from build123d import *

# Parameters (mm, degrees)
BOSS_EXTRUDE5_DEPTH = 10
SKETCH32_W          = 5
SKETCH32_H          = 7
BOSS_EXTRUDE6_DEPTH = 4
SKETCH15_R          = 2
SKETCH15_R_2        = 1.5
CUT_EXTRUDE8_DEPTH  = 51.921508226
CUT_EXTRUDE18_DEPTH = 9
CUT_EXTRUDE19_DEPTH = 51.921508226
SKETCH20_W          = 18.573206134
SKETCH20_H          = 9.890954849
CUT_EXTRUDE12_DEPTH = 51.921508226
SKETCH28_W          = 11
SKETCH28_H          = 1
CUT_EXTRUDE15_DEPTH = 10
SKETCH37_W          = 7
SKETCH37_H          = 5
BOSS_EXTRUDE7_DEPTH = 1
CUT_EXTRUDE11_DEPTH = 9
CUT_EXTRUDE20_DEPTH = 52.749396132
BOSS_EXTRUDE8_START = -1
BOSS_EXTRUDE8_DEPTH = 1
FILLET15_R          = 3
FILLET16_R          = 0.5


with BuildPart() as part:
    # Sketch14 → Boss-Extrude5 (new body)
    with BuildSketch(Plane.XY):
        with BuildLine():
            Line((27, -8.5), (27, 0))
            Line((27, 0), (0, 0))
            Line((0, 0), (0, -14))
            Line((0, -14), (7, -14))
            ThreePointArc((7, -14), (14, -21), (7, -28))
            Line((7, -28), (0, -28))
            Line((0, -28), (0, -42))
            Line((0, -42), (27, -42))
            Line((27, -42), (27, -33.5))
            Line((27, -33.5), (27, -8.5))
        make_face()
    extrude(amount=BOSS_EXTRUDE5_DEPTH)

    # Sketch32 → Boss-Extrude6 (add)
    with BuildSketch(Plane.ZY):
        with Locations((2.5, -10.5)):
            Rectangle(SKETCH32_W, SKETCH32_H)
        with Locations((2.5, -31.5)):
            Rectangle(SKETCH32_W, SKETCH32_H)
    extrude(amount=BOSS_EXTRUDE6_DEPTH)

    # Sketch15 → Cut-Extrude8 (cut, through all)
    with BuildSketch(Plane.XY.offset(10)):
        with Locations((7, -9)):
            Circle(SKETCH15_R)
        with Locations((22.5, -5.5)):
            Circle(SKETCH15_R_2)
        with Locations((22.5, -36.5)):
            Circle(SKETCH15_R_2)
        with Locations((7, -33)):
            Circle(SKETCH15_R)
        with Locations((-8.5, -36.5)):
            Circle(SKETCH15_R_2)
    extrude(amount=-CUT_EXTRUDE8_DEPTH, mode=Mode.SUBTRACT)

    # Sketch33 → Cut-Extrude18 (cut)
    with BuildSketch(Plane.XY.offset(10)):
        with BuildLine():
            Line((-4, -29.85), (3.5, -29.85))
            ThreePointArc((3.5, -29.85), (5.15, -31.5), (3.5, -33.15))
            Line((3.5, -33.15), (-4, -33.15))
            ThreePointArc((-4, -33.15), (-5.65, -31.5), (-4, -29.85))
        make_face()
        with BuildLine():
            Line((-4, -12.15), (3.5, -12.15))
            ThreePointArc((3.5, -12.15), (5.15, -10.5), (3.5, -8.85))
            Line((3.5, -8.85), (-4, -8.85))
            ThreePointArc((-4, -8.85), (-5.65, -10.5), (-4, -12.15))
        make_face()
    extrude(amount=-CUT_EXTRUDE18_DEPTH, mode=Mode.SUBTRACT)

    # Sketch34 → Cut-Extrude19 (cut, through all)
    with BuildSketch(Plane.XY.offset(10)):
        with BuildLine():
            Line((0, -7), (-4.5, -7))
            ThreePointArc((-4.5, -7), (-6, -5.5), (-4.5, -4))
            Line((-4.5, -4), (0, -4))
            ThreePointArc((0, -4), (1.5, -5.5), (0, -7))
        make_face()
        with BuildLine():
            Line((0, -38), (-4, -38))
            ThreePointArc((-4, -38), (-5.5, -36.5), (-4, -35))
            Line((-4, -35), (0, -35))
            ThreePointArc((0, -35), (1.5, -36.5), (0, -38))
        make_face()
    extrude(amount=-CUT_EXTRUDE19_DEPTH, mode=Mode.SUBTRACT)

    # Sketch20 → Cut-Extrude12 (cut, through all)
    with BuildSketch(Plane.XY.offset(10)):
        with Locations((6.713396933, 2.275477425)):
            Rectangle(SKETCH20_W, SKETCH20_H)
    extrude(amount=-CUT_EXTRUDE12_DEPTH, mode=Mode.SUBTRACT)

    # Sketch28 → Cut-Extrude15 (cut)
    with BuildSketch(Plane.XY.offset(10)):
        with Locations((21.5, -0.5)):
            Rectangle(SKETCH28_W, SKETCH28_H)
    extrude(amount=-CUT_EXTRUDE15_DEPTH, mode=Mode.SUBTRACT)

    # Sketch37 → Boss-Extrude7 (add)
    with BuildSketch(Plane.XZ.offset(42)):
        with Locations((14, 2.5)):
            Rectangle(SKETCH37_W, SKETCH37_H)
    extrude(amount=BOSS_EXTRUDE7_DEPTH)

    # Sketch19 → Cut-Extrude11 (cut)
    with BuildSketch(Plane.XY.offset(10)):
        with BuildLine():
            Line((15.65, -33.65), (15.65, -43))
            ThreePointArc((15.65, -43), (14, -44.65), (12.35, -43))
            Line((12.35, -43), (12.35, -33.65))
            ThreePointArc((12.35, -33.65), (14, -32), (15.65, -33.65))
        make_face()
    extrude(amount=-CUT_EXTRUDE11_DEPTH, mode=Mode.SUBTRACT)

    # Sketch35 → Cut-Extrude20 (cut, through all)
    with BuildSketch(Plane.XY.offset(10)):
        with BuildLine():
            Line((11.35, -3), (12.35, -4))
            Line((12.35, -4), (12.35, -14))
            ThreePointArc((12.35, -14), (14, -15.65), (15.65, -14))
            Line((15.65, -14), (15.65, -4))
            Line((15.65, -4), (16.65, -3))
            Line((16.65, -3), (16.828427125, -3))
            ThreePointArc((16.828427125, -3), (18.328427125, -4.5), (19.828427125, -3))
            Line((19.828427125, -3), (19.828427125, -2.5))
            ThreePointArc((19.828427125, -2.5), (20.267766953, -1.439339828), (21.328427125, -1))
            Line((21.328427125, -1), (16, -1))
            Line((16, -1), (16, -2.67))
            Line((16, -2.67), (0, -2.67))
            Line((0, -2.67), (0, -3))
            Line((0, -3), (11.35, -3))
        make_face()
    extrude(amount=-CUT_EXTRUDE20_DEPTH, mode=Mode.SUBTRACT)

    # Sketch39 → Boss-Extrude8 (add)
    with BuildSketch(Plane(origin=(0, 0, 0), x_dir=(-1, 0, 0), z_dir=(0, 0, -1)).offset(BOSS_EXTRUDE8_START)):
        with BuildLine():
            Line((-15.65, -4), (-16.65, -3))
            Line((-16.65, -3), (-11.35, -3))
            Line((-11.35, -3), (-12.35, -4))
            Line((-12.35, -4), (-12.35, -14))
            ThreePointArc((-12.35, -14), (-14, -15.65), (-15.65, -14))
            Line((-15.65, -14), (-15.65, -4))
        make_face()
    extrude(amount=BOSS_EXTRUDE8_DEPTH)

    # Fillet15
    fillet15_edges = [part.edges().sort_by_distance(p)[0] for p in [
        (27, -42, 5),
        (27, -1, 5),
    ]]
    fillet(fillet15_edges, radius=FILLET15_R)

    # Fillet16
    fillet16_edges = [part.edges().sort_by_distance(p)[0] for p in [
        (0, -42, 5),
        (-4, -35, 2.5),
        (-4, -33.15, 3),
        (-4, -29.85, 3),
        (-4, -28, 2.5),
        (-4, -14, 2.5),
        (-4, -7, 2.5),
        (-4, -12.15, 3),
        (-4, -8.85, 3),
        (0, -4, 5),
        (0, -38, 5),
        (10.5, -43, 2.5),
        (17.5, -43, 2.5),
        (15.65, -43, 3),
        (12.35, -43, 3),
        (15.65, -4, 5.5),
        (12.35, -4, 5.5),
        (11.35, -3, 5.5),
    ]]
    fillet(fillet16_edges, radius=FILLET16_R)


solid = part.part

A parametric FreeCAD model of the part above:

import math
import FreeCAD as App
import Part
import Sketcher

V = App.Vector
Q = App.Units.Quantity


def edges_at(feature, points):
    """Names of the edges that pass closest to the given points."""
    edges = feature.Shape.Edges
    near = lambda p: min(range(len(edges)), key=lambda i: edges[i].distToShape(Part.Vertex(*p))[0])
    return sorted({f"Edge{near(p) + 1}" for p in points})

doc = App.newDocument("Part")
body = doc.addObject("PartDesign::Body", "Body")

# Sketch on XY plane
sketch1 = body.newObject("Sketcher::SketchObject", "Sketch")
sketch1.AttachmentSupport = (doc.getObject("XY_Plane"), [""])
sketch1.MapMode = "FlatFace"
sketch1.addGeometry(Part.LineSegment(V(27, 0, 0), V(0, 0, 0)), False)
sketch1.addGeometry(Part.LineSegment(V(0, 0, 0), V(0, -14, 0)), False)
sketch1.addGeometry(Part.LineSegment(V(0, -14, 0), V(7, -14, 0)), False)
sketch1.addGeometry(Part.ArcOfCircle(Part.Circle(V(7, -21, 0), V(0, 0, 1), 7), math.radians(-90), math.radians(90)), False)
sketch1.addGeometry(Part.LineSegment(V(7, -28, 0), V(0, -28, 0)), False)
sketch1.addGeometry(Part.LineSegment(V(0, -28, 0), V(0, -42, 0)), False)
sketch1.addGeometry(Part.LineSegment(V(0, -42, 0), V(27, -42, 0)), False)
sketch1.addGeometry(Part.LineSegment(V(27, -42, 0), V(27, 0, 0)), False)
sketch1.addConstraint(Sketcher.Constraint("Coincident", 0, 2, 1, 1))
sketch1.addConstraint(Sketcher.Constraint("Coincident", 1, 2, 2, 1))
sketch1.addConstraint(Sketcher.Constraint("Tangent", 2, 2, 3, 2))
sketch1.addConstraint(Sketcher.Constraint("Tangent", 3, 1, 4, 1))
sketch1.addConstraint(Sketcher.Constraint("Coincident", 4, 2, 5, 1))
sketch1.addConstraint(Sketcher.Constraint("Coincident", 5, 2, 6, 1))
sketch1.addConstraint(Sketcher.Constraint("Coincident", 6, 2, 7, 1))
sketch1.addConstraint(Sketcher.Constraint("Coincident", 7, 2, 0, 1))
sketch1.addConstraint(Sketcher.Constraint("Horizontal", 0))
sketch1.addConstraint(Sketcher.Constraint("Vertical", 1))
sketch1.addConstraint(Sketcher.Constraint("Horizontal", 2))
sketch1.addConstraint(Sketcher.Constraint("Horizontal", 4))
sketch1.addConstraint(Sketcher.Constraint("Vertical", 5))
sketch1.addConstraint(Sketcher.Constraint("Horizontal", 6))
sketch1.addConstraint(Sketcher.Constraint("Vertical", 7))
sketch1.addConstraint(Sketcher.Constraint("Coincident", 0, 2, -1, 1))
sketch1.addConstraint(Sketcher.Constraint("PointOnObject", 4, 2, -2))
sketch1.addConstraint(Sketcher.Constraint("Equal", 1, 5))
sketch1.addConstraint(Sketcher.Constraint("Radius", 3, Q("7 mm")))
sketch1.addConstraint(Sketcher.Constraint("DistanceX", 0, 2, 0, 1, Q("27 mm")))
sketch1.addConstraint(Sketcher.Constraint("DistanceX", 2, 1, 2, 2, Q("7 mm")))
sketch1.addConstraint(Sketcher.Constraint("DistanceY", 1, 2, 1, 1, Q("14 mm")))
pad1 = body.newObject("PartDesign::Pad", "Pad")
pad1.Profile = sketch1
pad1.Length = 10

# Sketch on YZ plane
sketch2 = body.newObject("Sketcher::SketchObject", "Sketch001")
sketch2.AttachmentSupport = (doc.getObject("YZ_Plane"), [""])
sketch2.MapMode = "FlatFace"
sketch2.addGeometry(Part.LineSegment(V(-7, 0, 0), V(-14, 0, 0)), False)
sketch2.addGeometry(Part.LineSegment(V(-14, 0, 0), V(-14, 5, 0)), False)
sketch2.addGeometry(Part.LineSegment(V(-14, 5, 0), V(-7, 5, 0)), False)
sketch2.addGeometry(Part.LineSegment(V(-7, 5, 0), V(-7, 0, 0)), False)
sketch2.addGeometry(Part.LineSegment(V(-28, 0, 0), V(-35, 0, 0)), False)
sketch2.addGeometry(Part.LineSegment(V(-35, 0, 0), V(-35, 5, 0)), False)
sketch2.addGeometry(Part.LineSegment(V(-35, 5, 0), V(-28, 5, 0)), False)
sketch2.addGeometry(Part.LineSegment(V(-28, 5, 0), V(-28, 0, 0)), False)
sketch2.addConstraint(Sketcher.Constraint("Coincident", 0, 2, 1, 1))
sketch2.addConstraint(Sketcher.Constraint("Coincident", 1, 2, 2, 1))
sketch2.addConstraint(Sketcher.Constraint("Coincident", 2, 2, 3, 1))
sketch2.addConstraint(Sketcher.Constraint("Coincident", 3, 2, 0, 1))
sketch2.addConstraint(Sketcher.Constraint("Coincident", 4, 2, 5, 1))
sketch2.addConstraint(Sketcher.Constraint("Coincident", 5, 2, 6, 1))
sketch2.addConstraint(Sketcher.Constraint("Coincident", 6, 2, 7, 1))
sketch2.addConstraint(Sketcher.Constraint("Coincident", 7, 2, 4, 1))
sketch2.addConstraint(Sketcher.Constraint("Horizontal", 0))
sketch2.addConstraint(Sketcher.Constraint("Vertical", 1))
sketch2.addConstraint(Sketcher.Constraint("Horizontal", 2))
sketch2.addConstraint(Sketcher.Constraint("Vertical", 3))
sketch2.addConstraint(Sketcher.Constraint("Horizontal", 4))
sketch2.addConstraint(Sketcher.Constraint("Vertical", 5))
sketch2.addConstraint(Sketcher.Constraint("Horizontal", 6))
sketch2.addConstraint(Sketcher.Constraint("Vertical", 7))
sketch2.addConstraint(Sketcher.Constraint("PointOnObject", 0, 2, -1))
sketch2.addConstraint(Sketcher.Constraint("PointOnObject", 4, 2, -1))
sketch2.addConstraint(Sketcher.Constraint("Horizontal", 2, 2, 5, 2))
sketch2.addConstraint(Sketcher.Constraint("Equal", 2, 4))
sketch2.addConstraint(Sketcher.Constraint("DistanceX", 0, 2, 0, 1, Q("7 mm")))
sketch2.addConstraint(Sketcher.Constraint("DistanceY", 1, 1, 1, 2, Q("5 mm")))
sketch2.addConstraint(Sketcher.Constraint("DistanceX", 0, 2, -1, 1, Q("14 mm")))
sketch2.addConstraint(Sketcher.Constraint("DistanceX", 4, 2, -1, 1, Q("35 mm")))
pad2 = body.newObject("PartDesign::Pad", "Pad001")
pad2.Profile = sketch2
pad2.Length = 4
pad2.Reversed = True

# Sketch on XY plane
sketch3 = body.newObject("Sketcher::SketchObject", "Sketch002")
sketch3.AttachmentSupport = (doc.getObject("XY_Plane"), [""])
sketch3.MapMode = "FlatFace"
sketch3.AttachmentOffset = App.Placement(V(0, 0, 10), App.Rotation())
sketch3.addGeometry(Part.Circle(V(7, -9, 0), V(0, 0, 1), 2), False)
sketch3.addGeometry(Part.Circle(V(22.5, -5.5, 0), V(0, 0, 1), 1.5), False)
sketch3.addGeometry(Part.Circle(V(22.5, -36.5, 0), V(0, 0, 1), 1.5), False)
sketch3.addGeometry(Part.Circle(V(7, -33, 0), V(0, 0, 1), 2), False)
sketch3.addGeometry(Part.Circle(V(-8.5, -36.5, 0), V(0, 0, 1), 1.5), False)
sketch3.addConstraint(Sketcher.Constraint("Equal", 1, 2))
sketch3.addConstraint(Sketcher.Constraint("Equal", 0, 3))
sketch3.addConstraint(Sketcher.Constraint("Equal", 2, 4))
sketch3.addConstraint(Sketcher.Constraint("Horizontal", 2, 3, 4, 3))
sketch3.addConstraint(Sketcher.Constraint("Vertical", 1, 3, 2, 3))
sketch3.addConstraint(Sketcher.Constraint("Vertical", 0, 3, 3, 3))
sketch3.addConstraint(Sketcher.Constraint("Diameter", 0, Q("4 mm")))
sketch3.addConstraint(Sketcher.Constraint("Diameter", 1, Q("3 mm")))
sketch3.addConstraint(Sketcher.Constraint("DistanceX", -1, 1, 0, 3, Q("7 mm")))
sketch3.addConstraint(Sketcher.Constraint("DistanceY", 0, 3, -1, 1, Q("9 mm")))
sketch3.addConstraint(Sketcher.Constraint("DistanceY", 3, 3, -1, 1, Q("33 mm")))
sketch3.addConstraint(Sketcher.Constraint("DistanceY", 2, 3, 1, 3, Q("31 mm")))
sketch3.addConstraint(Sketcher.Constraint("DistanceX", 4, 3, 2, 3, Q("31 mm")))
sketch3.addConstraint(Sketcher.Constraint("DistanceX", -1, 1, 1, 3, Q("22.5 mm")))
sketch3.addConstraint(Sketcher.Constraint("DistanceY", 1, 3, -1, 1, Q("5.5 mm")))
pocket1 = body.newObject("PartDesign::Pocket", "Pocket")
pocket1.Profile = sketch3
pocket1.Type = "ThroughAll"

# Sketch on XY plane
sketch4 = body.newObject("Sketcher::SketchObject", "Sketch003")
sketch4.AttachmentSupport = (doc.getObject("XY_Plane"), [""])
sketch4.MapMode = "FlatFace"
sketch4.AttachmentOffset = App.Placement(V(0, 0, 10), App.Rotation())
sketch4.addGeometry(Part.LineSegment(V(3.5, -29.85, 0), V(-4, -29.85, 0)), False)
sketch4.addGeometry(Part.ArcOfCircle(Part.Circle(V(-4, -31.5, 0), V(0, 0, 1), 1.65), math.radians(90), math.radians(270)), False)
sketch4.addGeometry(Part.LineSegment(V(-4, -33.15, 0), V(3.5, -33.15, 0)), False)
sketch4.addGeometry(Part.ArcOfCircle(Part.Circle(V(3.5, -31.5, 0), V(0, 0, 1), 1.65), math.radians(-90), math.radians(90)), False)
sketch4.addGeometry(Part.LineSegment(V(-4, -12.15, 0), V(3.5, -12.15, 0)), False)
sketch4.addGeometry(Part.ArcOfCircle(Part.Circle(V(3.5, -10.5, 0), V(0, 0, 1), 1.65), math.radians(-90), math.radians(90)), False)
sketch4.addGeometry(Part.LineSegment(V(3.5, -8.85, 0), V(-4, -8.85, 0)), False)
sketch4.addGeometry(Part.ArcOfCircle(Part.Circle(V(-4, -10.5, 0), V(0, 0, 1), 1.65), math.radians(90), math.radians(270)), False)
sketch4.addConstraint(Sketcher.Constraint("Tangent", 0, 2, 1, 1))
sketch4.addConstraint(Sketcher.Constraint("Tangent", 1, 2, 2, 1))
sketch4.addConstraint(Sketcher.Constraint("Tangent", 2, 2, 3, 1))
sketch4.addConstraint(Sketcher.Constraint("Tangent", 3, 2, 0, 1))
sketch4.addConstraint(Sketcher.Constraint("Tangent", 4, 2, 5, 1))
sketch4.addConstraint(Sketcher.Constraint("Tangent", 5, 2, 6, 1))
sketch4.addConstraint(Sketcher.Constraint("Tangent", 6, 2, 7, 1))
sketch4.addConstraint(Sketcher.Constraint("Tangent", 7, 2, 4, 1))
sketch4.addConstraint(Sketcher.Constraint("Horizontal", 0))
sketch4.addConstraint(Sketcher.Constraint("Horizontal", 2))
sketch4.addConstraint(Sketcher.Constraint("Horizontal", 4))
sketch4.addConstraint(Sketcher.Constraint("Horizontal", 6))
sketch4.addConstraint(Sketcher.Constraint("Equal", 3, 5))
sketch4.addConstraint(Sketcher.Constraint("Vertical", 3, 3, 5, 3))
sketch4.addConstraint(Sketcher.Constraint("Vertical", 1, 3, 7, 3))
sketch4.addConstraint(Sketcher.Constraint("Radius", 1, Q("1.65 mm")))
sketch4.addConstraint(Sketcher.Constraint("DistanceX", 0, 2, 0, 1, Q("7.5 mm")))
sketch4.addConstraint(Sketcher.Constraint("DistanceX", 1, 3, -1, 1, Q("4 mm")))
sketch4.addConstraint(Sketcher.Constraint("DistanceY", 3, 3, 5, 3, Q("21 mm")))
sketch4.addConstraint(Sketcher.Constraint("DistanceY", 1, 3, -1, 1, Q("31.5 mm")))
pocket2 = body.newObject("PartDesign::Pocket", "Pocket001")
pocket2.Profile = sketch4
pocket2.Length = 9

# Sketch on XY plane
sketch5 = body.newObject("Sketcher::SketchObject", "Sketch004")
sketch5.AttachmentSupport = (doc.getObject("XY_Plane"), [""])
sketch5.MapMode = "FlatFace"
sketch5.AttachmentOffset = App.Placement(V(0, 0, 10), App.Rotation())
sketch5.addGeometry(Part.LineSegment(V(-4.5, -7, 0), V(0, -7, 0)), False)
sketch5.addGeometry(Part.ArcOfCircle(Part.Circle(V(0, -5.5, 0), V(0, 0, 1), 1.5), math.radians(-90), math.radians(90)), False)
sketch5.addGeometry(Part.LineSegment(V(0, -4, 0), V(-4.5, -4, 0)), False)
sketch5.addGeometry(Part.ArcOfCircle(Part.Circle(V(-4.5, -5.5, 0), V(0, 0, 1), 1.5), math.radians(90), math.radians(270)), False)
sketch5.addGeometry(Part.LineSegment(V(-4, -38, 0), V(0, -38, 0)), False)
sketch5.addGeometry(Part.ArcOfCircle(Part.Circle(V(0, -36.5, 0), V(0, 0, 1), 1.5), math.radians(-90), math.radians(90)), False)
sketch5.addGeometry(Part.LineSegment(V(0, -35, 0), V(-4, -35, 0)), False)
sketch5.addGeometry(Part.ArcOfCircle(Part.Circle(V(-4, -36.5, 0), V(0, 0, 1), 1.5), math.radians(90), math.radians(270)), False)
sketch5.addConstraint(Sketcher.Constraint("Tangent", 0, 2, 1, 1))
sketch5.addConstraint(Sketcher.Constraint("Tangent", 1, 2, 2, 1))
sketch5.addConstraint(Sketcher.Constraint("Tangent", 2, 2, 3, 1))
sketch5.addConstraint(Sketcher.Constraint("Tangent", 3, 2, 0, 1))
sketch5.addConstraint(Sketcher.Constraint("Tangent", 4, 2, 5, 1))
sketch5.addConstraint(Sketcher.Constraint("Tangent", 5, 2, 6, 1))
sketch5.addConstraint(Sketcher.Constraint("Tangent", 6, 2, 7, 1))
sketch5.addConstraint(Sketcher.Constraint("Tangent", 7, 2, 4, 1))
sketch5.addConstraint(Sketcher.Constraint("Horizontal", 0))
sketch5.addConstraint(Sketcher.Constraint("Horizontal", 2))
sketch5.addConstraint(Sketcher.Constraint("Horizontal", 4))
sketch5.addConstraint(Sketcher.Constraint("Horizontal", 6))
sketch5.addConstraint(Sketcher.Constraint("Equal", 3, 5))
sketch5.addConstraint(Sketcher.Constraint("PointOnObject", 1, 3, -2))
sketch5.addConstraint(Sketcher.Constraint("PointOnObject", 5, 3, -2))
sketch5.addConstraint(Sketcher.Constraint("Radius", 1, Q("1.5 mm")))
sketch5.addConstraint(Sketcher.Constraint("DistanceX", 4, 1, 4, 2, Q("4 mm")))
sketch5.addConstraint(Sketcher.Constraint("DistanceX", 0, 1, 0, 2, Q("4.5 mm")))
sketch5.addConstraint(Sketcher.Constraint("DistanceY", 0, 2, -1, 1, Q("7 mm")))
sketch5.addConstraint(Sketcher.Constraint("DistanceY", 4, 2, -1, 1, Q("38 mm")))
pocket3 = body.newObject("PartDesign::Pocket", "Pocket002")
pocket3.Profile = sketch5
pocket3.Type = "ThroughAll"

# Sketch on XY plane
sketch6 = body.newObject("Sketcher::SketchObject", "Sketch005")
sketch6.AttachmentSupport = (doc.getObject("XY_Plane"), [""])
sketch6.MapMode = "FlatFace"
sketch6.AttachmentOffset = App.Placement(V(0, 0, 10), App.Rotation())
sketch6.addGeometry(Part.LineSegment(V(-2.573206, 7.220955, 0), V(-2.573206, -2.67, 0)), False)
sketch6.addGeometry(Part.LineSegment(V(-2.573206, -2.67, 0), V(16, -2.67, 0)), False)
sketch6.addGeometry(Part.LineSegment(V(16, -2.67, 0), V(16, 7.220955, 0)), False)
sketch6.addGeometry(Part.LineSegment(V(16, 7.220955, 0), V(-2.573206, 7.220955, 0)), False)
sketch6.addConstraint(Sketcher.Constraint("Coincident", 0, 2, 1, 1))
sketch6.addConstraint(Sketcher.Constraint("Coincident", 1, 2, 2, 1))
sketch6.addConstraint(Sketcher.Constraint("Coincident", 2, 2, 3, 1))
sketch6.addConstraint(Sketcher.Constraint("Coincident", 3, 2, 0, 1))
sketch6.addConstraint(Sketcher.Constraint("Vertical", 0))
sketch6.addConstraint(Sketcher.Constraint("Horizontal", 1))
sketch6.addConstraint(Sketcher.Constraint("Vertical", 2))
sketch6.addConstraint(Sketcher.Constraint("Horizontal", 3))
sketch6.addConstraint(Sketcher.Constraint("DistanceX", -1, 1, 1, 2, Q("16 mm")))
sketch6.addConstraint(Sketcher.Constraint("DistanceY", 0, 2, -1, 1, Q("2.67 mm")))
sketch6.addConstraint(Sketcher.Constraint("DistanceX", 1, 1, 1, 2, Q("18.573206 mm")))
sketch6.addConstraint(Sketcher.Constraint("DistanceY", 0, 2, 0, 1, Q("9.890955 mm")))
pocket4 = body.newObject("PartDesign::Pocket", "Pocket003")
pocket4.Profile = sketch6
pocket4.Type = "ThroughAll"

# Sketch on XY plane
sketch7 = body.newObject("Sketcher::SketchObject", "Sketch006")
sketch7.AttachmentSupport = (doc.getObject("XY_Plane"), [""])
sketch7.MapMode = "FlatFace"
sketch7.AttachmentOffset = App.Placement(V(0, 0, 10), App.Rotation())
sketch7.addGeometry(Part.LineSegment(V(16, 0, 0), V(16, -1, 0)), False)
sketch7.addGeometry(Part.LineSegment(V(16, -1, 0), V(27, -1, 0)), False)
sketch7.addGeometry(Part.LineSegment(V(27, -1, 0), V(27, 0, 0)), False)
sketch7.addGeometry(Part.LineSegment(V(27, 0, 0), V(16, 0, 0)), False)
sketch7.addConstraint(Sketcher.Constraint("Coincident", 0, 2, 1, 1))
sketch7.addConstraint(Sketcher.Constraint("Coincident", 1, 2, 2, 1))
sketch7.addConstraint(Sketcher.Constraint("Coincident", 2, 2, 3, 1))
sketch7.addConstraint(Sketcher.Constraint("Coincident", 3, 2, 0, 1))
sketch7.addConstraint(Sketcher.Constraint("Vertical", 0))
sketch7.addConstraint(Sketcher.Constraint("Horizontal", 1))
sketch7.addConstraint(Sketcher.Constraint("Vertical", 2))
sketch7.addConstraint(Sketcher.Constraint("Horizontal", 3))
sketch7.addConstraint(Sketcher.Constraint("PointOnObject", 2, 2, -1))
sketch7.addConstraint(Sketcher.Constraint("DistanceX", 1, 1, 1, 2, Q("11 mm")))
sketch7.addConstraint(Sketcher.Constraint("DistanceY", 0, 2, 0, 1, Q("1 mm")))
sketch7.addConstraint(Sketcher.Constraint("DistanceX", -1, 1, 0, 2, Q("16 mm")))
pocket5 = body.newObject("PartDesign::Pocket", "Pocket004")
pocket5.Profile = sketch7
pocket5.Length = 10

# Sketch on XZ plane
sketch8 = body.newObject("Sketcher::SketchObject", "Sketch007")
sketch8.AttachmentSupport = (doc.getObject("XZ_Plane"), [""])
sketch8.MapMode = "FlatFace"
sketch8.AttachmentOffset = App.Placement(V(0, 0, 42), App.Rotation())
sketch8.addGeometry(Part.LineSegment(V(10.5, 5, 0), V(10.5, 0, 0)), False)
sketch8.addGeometry(Part.LineSegment(V(10.5, 0, 0), V(17.5, 0, 0)), False)
sketch8.addGeometry(Part.LineSegment(V(17.5, 0, 0), V(17.5, 5, 0)), False)
sketch8.addGeometry(Part.LineSegment(V(17.5, 5, 0), V(10.5, 5, 0)), False)
sketch8.addConstraint(Sketcher.Constraint("Coincident", 0, 2, 1, 1))
sketch8.addConstraint(Sketcher.Constraint("Coincident", 1, 2, 2, 1))
sketch8.addConstraint(Sketcher.Constraint("Coincident", 2, 2, 3, 1))
sketch8.addConstraint(Sketcher.Constraint("Coincident", 3, 2, 0, 1))
sketch8.addConstraint(Sketcher.Constraint("Vertical", 0))
sketch8.addConstraint(Sketcher.Constraint("Horizontal", 1))
sketch8.addConstraint(Sketcher.Constraint("Vertical", 2))
sketch8.addConstraint(Sketcher.Constraint("Horizontal", 3))
sketch8.addConstraint(Sketcher.Constraint("PointOnObject", 0, 2, -1))
sketch8.addConstraint(Sketcher.Constraint("DistanceX", 1, 1, 1, 2, Q("7 mm")))
sketch8.addConstraint(Sketcher.Constraint("DistanceY", 0, 2, 0, 1, Q("5 mm")))
sketch8.addConstraint(Sketcher.Constraint("DistanceX", -1, 1, 0, 2, Q("10.5 mm")))
pad3 = body.newObject("PartDesign::Pad", "Pad002")
pad3.Profile = sketch8
pad3.Length = 1

# Sketch on XY plane
sketch9 = body.newObject("Sketcher::SketchObject", "Sketch008")
sketch9.AttachmentSupport = (doc.getObject("XY_Plane"), [""])
sketch9.MapMode = "FlatFace"
sketch9.AttachmentOffset = App.Placement(V(0, 0, 10), App.Rotation())
sketch9.addGeometry(Part.LineSegment(V(15.65, -43, 0), V(15.65, -33.65, 0)), False)
sketch9.addGeometry(Part.ArcOfCircle(Part.Circle(V(14, -33.65, 0), V(0, 0, 1), 1.65), math.radians(0), math.radians(180)), False)
sketch9.addGeometry(Part.LineSegment(V(12.35, -33.65, 0), V(12.35, -43, 0)), False)
sketch9.addGeometry(Part.ArcOfCircle(Part.Circle(V(14, -43, 0), V(0, 0, 1), 1.65), math.radians(180), math.radians(360)), False)
sketch9.addConstraint(Sketcher.Constraint("Tangent", 0, 2, 1, 1))
sketch9.addConstraint(Sketcher.Constraint("Tangent", 1, 2, 2, 1))
sketch9.addConstraint(Sketcher.Constraint("Tangent", 2, 2, 3, 1))
sketch9.addConstraint(Sketcher.Constraint("Tangent", 3, 2, 0, 1))
sketch9.addConstraint(Sketcher.Constraint("Vertical", 0))
sketch9.addConstraint(Sketcher.Constraint("Vertical", 2))
sketch9.addConstraint(Sketcher.Constraint("Radius", 1, Q("1.65 mm")))
sketch9.addConstraint(Sketcher.Constraint("DistanceX", -1, 1, 1, 3, Q("14 mm")))
sketch9.addConstraint(Sketcher.Constraint("DistanceY", 3, 3, -1, 1, Q("43 mm")))
sketch9.addConstraint(Sketcher.Constraint("DistanceY", 0, 1, 0, 2, Q("9.35 mm")))
pocket6 = body.newObject("PartDesign::Pocket", "Pocket005")
pocket6.Profile = sketch9
pocket6.Length = 9

# Sketch on XY plane
sketch10 = body.newObject("Sketcher::SketchObject", "Sketch009")
sketch10.AttachmentSupport = (doc.getObject("XY_Plane"), [""])
sketch10.MapMode = "FlatFace"
sketch10.AttachmentOffset = App.Placement(V(0, 0, 10), App.Rotation())
sketch10.addGeometry(Part.LineSegment(V(11.35, -3, 0), V(12.35, -4, 0)), False)
sketch10.addGeometry(Part.LineSegment(V(12.35, -4, 0), V(12.35, -14, 0)), False)
sketch10.addGeometry(Part.ArcOfCircle(Part.Circle(V(14, -14, 0), V(0, 0, 1), 1.65), math.radians(180), math.radians(360)), False)
sketch10.addGeometry(Part.LineSegment(V(15.65, -14, 0), V(15.65, -4, 0)), False)
sketch10.addGeometry(Part.LineSegment(V(15.65, -4, 0), V(16.65, -3, 0)), False)
sketch10.addGeometry(Part.LineSegment(V(16.65, -3, 0), V(16.828427, -3, 0)), False)
sketch10.addGeometry(Part.ArcOfCircle(Part.Circle(V(18.328427, -3, 0), V(0, 0, 1), 1.5), math.radians(180), math.radians(360)), False)
sketch10.addGeometry(Part.LineSegment(V(19.828427, -3, 0), V(19.828427, -2.5, 0)), False)
sketch10.addGeometry(Part.ArcOfCircle(Part.Circle(V(21.328427, -2.5, 0), V(0, 0, 1), 1.5), math.radians(90), math.radians(180)), False)
sketch10.addGeometry(Part.LineSegment(V(21.328427, -1, 0), V(16, -1, 0)), False)
sketch10.addGeometry(Part.LineSegment(V(16, -1, 0), V(16, -2.67, 0)), False)
sketch10.addGeometry(Part.LineSegment(V(16, -2.67, 0), V(0, -2.67, 0)), False)
sketch10.addGeometry(Part.LineSegment(V(0, -2.67, 0), V(0, -3, 0)), False)
sketch10.addGeometry(Part.LineSegment(V(0, -3, 0), V(11.35, -3, 0)), False)
sketch10.addConstraint(Sketcher.Constraint("Coincident", 0, 2, 1, 1))
sketch10.addConstraint(Sketcher.Constraint("Tangent", 1, 2, 2, 1))
sketch10.addConstraint(Sketcher.Constraint("Tangent", 2, 2, 3, 1))
sketch10.addConstraint(Sketcher.Constraint("Coincident", 3, 2, 4, 1))
sketch10.addConstraint(Sketcher.Constraint("Coincident", 4, 2, 5, 1))
sketch10.addConstraint(Sketcher.Constraint("Coincident", 5, 2, 6, 1))
sketch10.addConstraint(Sketcher.Constraint("Tangent", 6, 2, 7, 1))
sketch10.addConstraint(Sketcher.Constraint("Tangent", 7, 2, 8, 2))
sketch10.addConstraint(Sketcher.Constraint("Tangent", 8, 1, 9, 1))
sketch10.addConstraint(Sketcher.Constraint("Coincident", 9, 2, 10, 1))
sketch10.addConstraint(Sketcher.Constraint("Coincident", 10, 2, 11, 1))
sketch10.addConstraint(Sketcher.Constraint("Coincident", 11, 2, 12, 1))
sketch10.addConstraint(Sketcher.Constraint("Coincident", 12, 2, 13, 1))
sketch10.addConstraint(Sketcher.Constraint("Coincident", 13, 2, 0, 1))
sketch10.addConstraint(Sketcher.Constraint("Vertical", 1))
sketch10.addConstraint(Sketcher.Constraint("Vertical", 3))
sketch10.addConstraint(Sketcher.Constraint("Horizontal", 5))
sketch10.addConstraint(Sketcher.Constraint("Vertical", 7))
sketch10.addConstraint(Sketcher.Constraint("Horizontal", 9))
sketch10.addConstraint(Sketcher.Constraint("Vertical", 10))
sketch10.addConstraint(Sketcher.Constraint("Horizontal", 11))
sketch10.addConstraint(Sketcher.Constraint("Vertical", 12))
sketch10.addConstraint(Sketcher.Constraint("Horizontal", 13))
sketch10.addConstraint(Sketcher.Constraint("Equal", 6, 8))
sketch10.addConstraint(Sketcher.Constraint("PointOnObject", 11, 2, -2))
sketch10.addConstraint(Sketcher.Constraint("Perpendicular", 0, 4))
sketch10.addConstraint(Sketcher.Constraint("Horizontal", 0, 2, 3, 2))
sketch10.addConstraint(Sketcher.Constraint("Horizontal", 6, 3, 4, 2))
sketch10.addConstraint(Sketcher.Constraint("Horizontal", 6, 2, 12, 2))
sketch10.addConstraint(Sketcher.Constraint("Equal", 0, 4))
sketch10.addConstraint(Sketcher.Constraint("Radius", 6, Q("1.5 mm")))
sketch10.addConstraint(Sketcher.Constraint("DistanceX", 11, 2, 11, 1, Q("16 mm")))
sketch10.addConstraint(Sketcher.Constraint("DistanceY", 1, 2, 1, 1, Q("10 mm")))
sketch10.addConstraint(Sketcher.Constraint("Radius", 2, Q("1.65 mm")))
sketch10.addConstraint(Sketcher.Constraint("DistanceY", 7, 1, 7, 2, Q("0.5 mm")))
sketch10.addConstraint(Sketcher.Constraint("DistanceX", -1, 1, 2, 3, Q("14 mm")))
sketch10.addConstraint(Sketcher.Constraint("DistanceY", 2, 3, -1, 1, Q("14 mm")))
sketch10.addConstraint(Sketcher.Constraint("DistanceY", 6, 3, -1, 1, Q("3 mm")))
sketch10.addConstraint(Sketcher.Constraint("DistanceY", 10, 2, 10, 1, Q("1.67 mm")))
sketch10.addConstraint(Sketcher.Constraint("DistanceX", 5, 1, 5, 2, Q("0.178427 mm")))
pocket7 = body.newObject("PartDesign::Pocket", "Pocket006")
pocket7.Profile = sketch10
pocket7.Type = "ThroughAll"

# Sketch on XY plane
sketch11 = body.newObject("Sketcher::SketchObject", "Sketch010")
sketch11.AttachmentSupport = (doc.getObject("XY_Plane"), [""])
sketch11.MapMode = "FlatFace"
sketch11.AttachmentOffset = App.Placement(V(0, 0, 1), App.Rotation())
sketch11.addGeometry(Part.LineSegment(V(16.65, -3, 0), V(15.65, -4, 0)), False)
sketch11.addGeometry(Part.LineSegment(V(15.65, -4, 0), V(15.65, -14, 0)), False)
sketch11.addGeometry(Part.ArcOfCircle(Part.Circle(V(14, -14, 0), V(0, 0, 1), 1.65), math.radians(180), math.radians(360)), False)
sketch11.addGeometry(Part.LineSegment(V(12.35, -14, 0), V(12.35, -4, 0)), False)
sketch11.addGeometry(Part.LineSegment(V(12.35, -4, 0), V(11.35, -3, 0)), False)
sketch11.addGeometry(Part.LineSegment(V(11.35, -3, 0), V(16.65, -3, 0)), False)
sketch11.addConstraint(Sketcher.Constraint("Coincident", 0, 2, 1, 1))
sketch11.addConstraint(Sketcher.Constraint("Tangent", 1, 2, 2, 2))
sketch11.addConstraint(Sketcher.Constraint("Tangent", 2, 1, 3, 1))
sketch11.addConstraint(Sketcher.Constraint("Coincident", 3, 2, 4, 1))
sketch11.addConstraint(Sketcher.Constraint("Coincident", 4, 2, 5, 1))
sketch11.addConstraint(Sketcher.Constraint("Coincident", 5, 2, 0, 1))
sketch11.addConstraint(Sketcher.Constraint("Vertical", 1))
sketch11.addConstraint(Sketcher.Constraint("Vertical", 3))
sketch11.addConstraint(Sketcher.Constraint("Horizontal", 5))
sketch11.addConstraint(Sketcher.Constraint("Perpendicular", 0, 4))
sketch11.addConstraint(Sketcher.Constraint("Horizontal", 0, 2, 3, 2))
sketch11.addConstraint(Sketcher.Constraint("Equal", 0, 4))
sketch11.addConstraint(Sketcher.Constraint("DistanceY", 1, 2, 1, 1, Q("10 mm")))
sketch11.addConstraint(Sketcher.Constraint("Radius", 2, Q("1.65 mm")))
sketch11.addConstraint(Sketcher.Constraint("DistanceX", 5, 1, 5, 2, Q("5.3 mm")))
sketch11.addConstraint(Sketcher.Constraint("DistanceX", -1, 1, 2, 3, Q("14 mm")))
sketch11.addConstraint(Sketcher.Constraint("DistanceY", 2, 3, -1, 1, Q("14 mm")))
pad4 = body.newObject("PartDesign::Pad", "Pad003")
pad4.Profile = sketch11
pad4.Length = 1
pad4.Reversed = True
doc.recompute()

fillet = body.newObject("PartDesign::Fillet", "Fillet")
fillet.Base = (pad4, edges_at(pad4, [(27, -42, 5), (27, -1, 5)]))
fillet.Radius = 3
doc.recompute()

fillet2 = body.newObject("PartDesign::Fillet", "Fillet001")
fillet2.Base = (fillet, edges_at(fillet, [
    (0, -42, 5),
    (-4, -35, 2.5),
    (-4, -33.15, 3),
    (-4, -29.85, 3),
    (-4, -28, 2.5),
    (-4, -14, 2.5),
    (-4, -7, 2.5),
    (-4, -12.15, 3),
    (-4, -8.85, 3),
    (0, -4, 5),
    (0, -38, 5),
    (10.5, -43, 2.5),
    (17.5, -43, 2.5),
    (15.65, -43, 3),
    (12.35, -43, 3),
    (15.65, -4, 5.5),
    (12.35, -4, 5.5),
    (11.35, -3, 5.5),
]))
fillet2.Radius = 0.5

doc.recompute()
